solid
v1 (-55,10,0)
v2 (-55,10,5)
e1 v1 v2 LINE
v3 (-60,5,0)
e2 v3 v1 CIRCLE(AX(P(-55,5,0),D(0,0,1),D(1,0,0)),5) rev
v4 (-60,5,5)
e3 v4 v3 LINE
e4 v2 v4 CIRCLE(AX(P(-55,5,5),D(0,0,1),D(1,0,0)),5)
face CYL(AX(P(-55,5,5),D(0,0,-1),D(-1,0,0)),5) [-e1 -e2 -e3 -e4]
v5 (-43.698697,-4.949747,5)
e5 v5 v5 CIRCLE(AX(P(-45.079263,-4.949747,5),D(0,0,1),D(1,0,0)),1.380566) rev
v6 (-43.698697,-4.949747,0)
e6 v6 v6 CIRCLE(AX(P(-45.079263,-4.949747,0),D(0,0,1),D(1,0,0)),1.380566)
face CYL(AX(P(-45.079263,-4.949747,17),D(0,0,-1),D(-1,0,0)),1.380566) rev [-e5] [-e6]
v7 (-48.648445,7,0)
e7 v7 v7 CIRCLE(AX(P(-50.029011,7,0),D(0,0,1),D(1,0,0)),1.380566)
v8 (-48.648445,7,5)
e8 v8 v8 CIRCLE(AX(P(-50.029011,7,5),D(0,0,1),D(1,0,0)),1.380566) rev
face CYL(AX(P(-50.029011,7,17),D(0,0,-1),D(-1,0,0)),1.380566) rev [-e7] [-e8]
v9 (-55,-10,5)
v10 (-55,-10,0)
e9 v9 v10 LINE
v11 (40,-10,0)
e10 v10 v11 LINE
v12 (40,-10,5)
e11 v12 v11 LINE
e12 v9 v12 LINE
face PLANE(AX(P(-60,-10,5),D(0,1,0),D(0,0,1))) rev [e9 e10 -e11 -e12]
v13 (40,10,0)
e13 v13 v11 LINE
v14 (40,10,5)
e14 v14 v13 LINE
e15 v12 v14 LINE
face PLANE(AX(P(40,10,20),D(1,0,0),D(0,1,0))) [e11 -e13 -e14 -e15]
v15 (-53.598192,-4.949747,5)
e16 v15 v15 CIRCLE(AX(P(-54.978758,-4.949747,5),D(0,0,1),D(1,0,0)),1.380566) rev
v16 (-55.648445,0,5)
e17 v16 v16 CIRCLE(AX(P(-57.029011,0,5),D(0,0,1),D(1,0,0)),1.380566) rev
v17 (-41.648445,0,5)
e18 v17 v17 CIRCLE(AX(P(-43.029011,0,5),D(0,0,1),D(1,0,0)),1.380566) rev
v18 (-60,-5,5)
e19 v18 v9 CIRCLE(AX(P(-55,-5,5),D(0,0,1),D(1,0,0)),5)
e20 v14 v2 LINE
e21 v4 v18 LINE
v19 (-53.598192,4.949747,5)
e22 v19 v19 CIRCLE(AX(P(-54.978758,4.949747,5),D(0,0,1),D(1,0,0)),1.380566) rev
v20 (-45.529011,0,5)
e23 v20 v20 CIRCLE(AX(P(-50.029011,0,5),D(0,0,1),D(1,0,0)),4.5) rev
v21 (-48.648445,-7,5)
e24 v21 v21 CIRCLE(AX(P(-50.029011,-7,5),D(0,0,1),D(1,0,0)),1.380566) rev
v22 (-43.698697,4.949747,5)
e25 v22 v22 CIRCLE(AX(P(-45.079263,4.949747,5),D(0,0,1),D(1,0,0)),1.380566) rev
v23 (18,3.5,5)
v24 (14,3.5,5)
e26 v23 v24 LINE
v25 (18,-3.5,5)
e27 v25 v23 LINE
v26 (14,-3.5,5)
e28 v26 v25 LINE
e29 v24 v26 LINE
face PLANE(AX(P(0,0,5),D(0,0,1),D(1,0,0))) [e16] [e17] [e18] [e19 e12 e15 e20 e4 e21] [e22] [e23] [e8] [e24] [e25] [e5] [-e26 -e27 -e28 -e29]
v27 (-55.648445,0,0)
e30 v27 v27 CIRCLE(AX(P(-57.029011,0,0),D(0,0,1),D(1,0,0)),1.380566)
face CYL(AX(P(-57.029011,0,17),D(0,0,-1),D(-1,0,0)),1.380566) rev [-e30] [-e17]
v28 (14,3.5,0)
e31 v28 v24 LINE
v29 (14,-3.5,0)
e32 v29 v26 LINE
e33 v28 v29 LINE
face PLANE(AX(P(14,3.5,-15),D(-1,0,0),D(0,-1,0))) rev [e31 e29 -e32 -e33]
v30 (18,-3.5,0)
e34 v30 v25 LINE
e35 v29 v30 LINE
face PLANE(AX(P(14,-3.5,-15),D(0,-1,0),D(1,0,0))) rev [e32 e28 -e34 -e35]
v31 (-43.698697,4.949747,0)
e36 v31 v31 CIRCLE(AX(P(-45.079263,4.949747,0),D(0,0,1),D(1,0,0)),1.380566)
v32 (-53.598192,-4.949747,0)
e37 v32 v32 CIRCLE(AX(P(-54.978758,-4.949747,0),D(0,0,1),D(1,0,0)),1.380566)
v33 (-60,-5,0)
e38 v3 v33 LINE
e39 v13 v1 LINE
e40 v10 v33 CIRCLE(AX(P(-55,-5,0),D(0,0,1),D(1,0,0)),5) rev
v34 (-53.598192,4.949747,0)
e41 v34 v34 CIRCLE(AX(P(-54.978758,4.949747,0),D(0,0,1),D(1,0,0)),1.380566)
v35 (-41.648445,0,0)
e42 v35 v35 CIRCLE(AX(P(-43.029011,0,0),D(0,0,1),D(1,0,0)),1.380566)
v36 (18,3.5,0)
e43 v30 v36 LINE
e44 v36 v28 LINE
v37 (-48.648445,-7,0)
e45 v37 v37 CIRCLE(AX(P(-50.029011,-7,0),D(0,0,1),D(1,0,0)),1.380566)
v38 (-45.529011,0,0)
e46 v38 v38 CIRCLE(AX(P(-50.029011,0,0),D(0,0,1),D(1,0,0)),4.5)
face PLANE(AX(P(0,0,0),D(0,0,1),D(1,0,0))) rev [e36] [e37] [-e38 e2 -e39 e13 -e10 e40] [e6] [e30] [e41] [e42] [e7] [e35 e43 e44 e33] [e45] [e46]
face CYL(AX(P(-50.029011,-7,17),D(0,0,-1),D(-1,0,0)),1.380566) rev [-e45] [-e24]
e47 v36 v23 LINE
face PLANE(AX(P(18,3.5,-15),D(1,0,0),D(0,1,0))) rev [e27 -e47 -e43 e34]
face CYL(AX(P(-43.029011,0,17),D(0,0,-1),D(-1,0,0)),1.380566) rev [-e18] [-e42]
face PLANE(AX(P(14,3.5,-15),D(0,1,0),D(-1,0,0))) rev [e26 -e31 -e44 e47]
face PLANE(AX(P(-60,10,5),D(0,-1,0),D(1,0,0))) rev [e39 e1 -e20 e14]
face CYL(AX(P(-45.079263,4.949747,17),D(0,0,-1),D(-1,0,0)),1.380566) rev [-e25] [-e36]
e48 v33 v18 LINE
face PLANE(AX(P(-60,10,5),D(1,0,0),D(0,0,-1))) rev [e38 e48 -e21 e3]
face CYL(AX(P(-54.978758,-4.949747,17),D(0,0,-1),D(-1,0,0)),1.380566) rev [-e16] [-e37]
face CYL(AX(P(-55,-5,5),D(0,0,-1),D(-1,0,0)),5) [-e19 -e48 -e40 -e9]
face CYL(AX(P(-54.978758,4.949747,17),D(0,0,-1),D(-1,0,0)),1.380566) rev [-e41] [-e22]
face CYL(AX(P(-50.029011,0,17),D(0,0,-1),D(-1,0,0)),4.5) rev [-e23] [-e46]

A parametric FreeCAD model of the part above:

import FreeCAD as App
import Part
import Sketcher

V = App.Vector


def edges_at(feature, points):
    """Names of the edges that pass closest to the given points."""
    edges = feature.Shape.Edges
    near = lambda p: min(range(len(edges)), key=lambda i: edges[i].distToShape(Part.Vertex(*p))[0])
    return sorted({f"Edge{near(p) + 1}" for p in points})

doc = App.newDocument("Part")
body = doc.addObject("PartDesign::Body", "Body")

sketch1 = doc.addObject("Sketcher::SketchObject", "Sketch")
body.addObject(sketch1)
sketch1.AttachmentSupport = (doc.XY_Plane, [""])
sketch1.MapMode = "FlatFace"
sketch1.addGeometry([
    Part.LineSegment(V(-60, 10, 0), V(-60, -10, 0)),
    Part.LineSegment(V(-60, -10, 0), V(60, -10, 0)),
    Part.LineSegment(V(60, -10, 0), V(60, 10, 0)),
    Part.LineSegment(V(60, 10, 0), V(-60, 10, 0)),
], False)
sketch1.addConstraint([
    Sketcher.Constraint("Coincident", 0, 2, 1, 1),
    Sketcher.Constraint("Coincident", 1, 2, 2, 1),
    Sketcher.Constraint("Coincident", 2, 2, 3, 1),
    Sketcher.Constraint("Coincident", 3, 2, 0, 1),
    Sketcher.Constraint("Vertical", 0),
    Sketcher.Constraint("Horizontal", 1),
    Sketcher.Constraint("Vertical", 2),
    Sketcher.Constraint("Horizontal", 3),
    Sketcher.Constraint("Symmetric", 0, 2, 2, 2, -1, 1),
    Sketcher.Constraint("DistanceX", 1, 1, 1, 2, 120.0),
    Sketcher.Constraint("DistanceY", 0, 2, 0, 1, 20.0),
])
pad1 = doc.addObject("PartDesign::Pad", "Pad")
body.addObject(pad1)
pad1.Profile = sketch1
pad1.Length = 5
doc.recompute()

fillet = doc.addObject("PartDesign::Fillet", "Fillet")
body.addObject(fillet)
fillet.Base = (pad1, edges_at(pad1, [(-60, -10, 2.5), (-60, 10, 2.5)]))
fillet.Radius = 5

sketch2 = doc.addObject("Sketcher::SketchObject", "Sketch001")
body.addObject(sketch2)
sketch2.AttachmentSupport = (doc.XY_Plane, [""])
sketch2.MapMode = "FlatFace"
sketch2.addGeometry([
    Part.Circle(V(-50, 0, 0), V(0, 0, 1), 4.5),
    Part.Circle(V(-50, 7, 0), V(0, 0, 1), 1.4),
    Part.Circle(V(-45.1, 4.9, 0), V(0, 0, 1), 1.4),
    Part.Circle(V(-43, 0, 0), V(0, 0, 1), 1.4),
    Part.Circle(V(-45.1, -4.9, 0), V(0, 0, 1), 1.4),
    Part.Circle(V(-50, -7, 0), V(0, 0, 1), 1.4),
    Part.Circle(V(-55, -4.9, 0), V(0, 0, 1), 1.4),
    Part.Circle(V(-57, 0, 0), V(0, 0, 1), 1.4),
    Part.Circle(V(-55, 4.9, 0), V(0, 0, 1), 1.4),
], False)
sketch2.addConstraint([
    Sketcher.Constraint("Equal", 1, 2),
    Sketcher.Constraint("Equal", 2, 3),
    Sketcher.Constraint("Equal", 3, 4),
    Sketcher.Constraint("Equal", 4, 5),
    Sketcher.Constraint("Equal", 5, 6),
    Sketcher.Constraint("Equal", 6, 7),
    Sketcher.Constraint("Equal", 7, 8),
    Sketcher.Constraint("Symmetric", 2, 3, 4, 3, -1),
    Sketcher.Constraint("Symmetric", 1, 3, 5, 3, -1),
    Sketcher.Constraint("Symmetric", 6, 3, 8, 3, -1),
    Sketcher.Constraint("PointOnObject", 0, 3, -1),
    Sketcher.Constraint("PointOnObject", 3, 3, -1),
    Sketcher.Constraint("PointOnObject", 7, 3, -1),
    Sketcher.Constraint("Horizontal", 4, 3, 6, 3),
    Sketcher.Constraint("Vertical", 0, 3, 1, 3),
    Sketcher.Constraint("Diameter", 0, 9.0),
    Sketcher.Constraint("DistanceY", -1, 1, 1, 3, 7.0),
    Sketcher.Constraint("DistanceX", 0, 3, 3, 3, 7.0),
    Sketcher.Constraint("DistanceX", 7, 3, 0, 3, 7.0),
    Sketcher.Constraint("Diameter", 1, 2.761132),
    Sketcher.Constraint("DistanceX", 0, 3, -1, 1, 50.029011),
    Sketcher.Constraint("DistanceX", 6, 3, -1, 1, 54.978758),
    Sketcher.Constraint("DistanceX", 2, 3, -1, 1, 45.079263),
    Sketcher.Constraint("DistanceY", -1, 1, 2, 3, 4.949747),
])
pocket1 = doc.addObject("PartDesign::Pocket", "Pocket")
body.addObject(pocket1)
pocket1.Profile = sketch2
pocket1.Length = 17
pocket1.Reversed = True

sketch3 = doc.addObject("Sketcher::SketchObject", "Sketch002")
body.addObject(sketch3)
sketch3.AttachmentSupport = (doc.XY_Plane, [""])
sketch3.MapMode = "FlatFace"
sketch3.addGeometry([
    Part.LineSegment(V(40, 10, 0), V(40, -10, 0)),
    Part.LineSegment(V(40, -10, 0), V(60, -10, 0)),
    Part.LineSegment(V(60, -10, 0), V(60, 10, 0)),
    Part.LineSegment(V(60, 10, 0), V(40, 10, 0)),
], False)
sketch3.addConstraint([
    Sketcher.Constraint("Coincident", 0, 2, 1, 1),
    Sketcher.Constraint("Coincident", 1, 2, 2, 1),
    Sketcher.Constraint("Coincident", 2, 2, 3, 1),
    Sketcher.Constraint("Coincident", 3, 2, 0, 1),
    Sketcher.Constraint("Vertical", 0),
    Sketcher.Constraint("Horizontal", 1),
    Sketcher.Constraint("Vertical", 2),
    Sketcher.Constraint("Horizontal", 3),
    Sketcher.Constraint("Equal", 3, 0),
    Sketcher.Constraint("DistanceX", 1, 1, 1, 2, 20.0),
    Sketcher.Constraint("DistanceX", -1, 1, 0, 2, 40.0),
    Sketcher.Constraint("DistanceY", 0, 2, -1, 1, 10.0),
])
pocket2 = doc.addObject("PartDesign::Pocket", "Pocket001")
body.addObject(pocket2)
pocket2.Profile = sketch3
pocket2.Length = 20
pocket2.Reversed = True

sketch4 = doc.addObject("Sketcher::SketchObject", "Sketch003")
body.addObject(sketch4)
sketch4.AttachmentSupport = (doc.XY_Plane, [""])
sketch4.MapMode = "FlatFace"
sketch4.AttachmentOffset = App.Placement(V(0, 0, 5), App.Rotation())
sketch4.addGeometry([
    Part.LineSegment(V(14, 3.5, 0), V(14, -3.5, 0)),
    Part.LineSegment(V(14, -3.5, 0), V(18, -3.5, 0)),
    Part.LineSegment(V(18, -3.5, 0), V(18, 3.5, 0)),
    Part.LineSegment(V(18, 3.5, 0), V(14, 3.5, 0)),
], False)
sketch4.addConstraint([
    Sketcher.Constraint("Coincident", 0, 2, 1, 1),
    Sketcher.Constraint("Coincident", 1, 2, 2, 1),
    Sketcher.Constraint("Coincident", 2, 2, 3, 1),
    Sketcher.Constraint("Coincident", 3, 2, 0, 1),
    Sketcher.Constraint("Vertical", 0),
    Sketcher.Constraint("Horizontal", 1),
    Sketcher.Constraint("Vertical", 2),
    Sketcher.Constraint("Horizontal", 3),
    Sketcher.Constraint("DistanceX", 1, 1, 1, 2, 4.0),
    Sketcher.Constraint("DistanceY", 0, 2, 0, 1, 7.0),
    Sketcher.Constraint("DistanceX", -1, 1, 0, 2, 14.0),
    Sketcher.Constraint("DistanceY", 0, 2, -1, 1, 3.5),
])
pocket3 = doc.addObject("PartDesign::Pocket", "Pocket002")
body.addObject(pocket3)
pocket3.Profile = sketch4
pocket3.Length = 20

doc.recompute()
